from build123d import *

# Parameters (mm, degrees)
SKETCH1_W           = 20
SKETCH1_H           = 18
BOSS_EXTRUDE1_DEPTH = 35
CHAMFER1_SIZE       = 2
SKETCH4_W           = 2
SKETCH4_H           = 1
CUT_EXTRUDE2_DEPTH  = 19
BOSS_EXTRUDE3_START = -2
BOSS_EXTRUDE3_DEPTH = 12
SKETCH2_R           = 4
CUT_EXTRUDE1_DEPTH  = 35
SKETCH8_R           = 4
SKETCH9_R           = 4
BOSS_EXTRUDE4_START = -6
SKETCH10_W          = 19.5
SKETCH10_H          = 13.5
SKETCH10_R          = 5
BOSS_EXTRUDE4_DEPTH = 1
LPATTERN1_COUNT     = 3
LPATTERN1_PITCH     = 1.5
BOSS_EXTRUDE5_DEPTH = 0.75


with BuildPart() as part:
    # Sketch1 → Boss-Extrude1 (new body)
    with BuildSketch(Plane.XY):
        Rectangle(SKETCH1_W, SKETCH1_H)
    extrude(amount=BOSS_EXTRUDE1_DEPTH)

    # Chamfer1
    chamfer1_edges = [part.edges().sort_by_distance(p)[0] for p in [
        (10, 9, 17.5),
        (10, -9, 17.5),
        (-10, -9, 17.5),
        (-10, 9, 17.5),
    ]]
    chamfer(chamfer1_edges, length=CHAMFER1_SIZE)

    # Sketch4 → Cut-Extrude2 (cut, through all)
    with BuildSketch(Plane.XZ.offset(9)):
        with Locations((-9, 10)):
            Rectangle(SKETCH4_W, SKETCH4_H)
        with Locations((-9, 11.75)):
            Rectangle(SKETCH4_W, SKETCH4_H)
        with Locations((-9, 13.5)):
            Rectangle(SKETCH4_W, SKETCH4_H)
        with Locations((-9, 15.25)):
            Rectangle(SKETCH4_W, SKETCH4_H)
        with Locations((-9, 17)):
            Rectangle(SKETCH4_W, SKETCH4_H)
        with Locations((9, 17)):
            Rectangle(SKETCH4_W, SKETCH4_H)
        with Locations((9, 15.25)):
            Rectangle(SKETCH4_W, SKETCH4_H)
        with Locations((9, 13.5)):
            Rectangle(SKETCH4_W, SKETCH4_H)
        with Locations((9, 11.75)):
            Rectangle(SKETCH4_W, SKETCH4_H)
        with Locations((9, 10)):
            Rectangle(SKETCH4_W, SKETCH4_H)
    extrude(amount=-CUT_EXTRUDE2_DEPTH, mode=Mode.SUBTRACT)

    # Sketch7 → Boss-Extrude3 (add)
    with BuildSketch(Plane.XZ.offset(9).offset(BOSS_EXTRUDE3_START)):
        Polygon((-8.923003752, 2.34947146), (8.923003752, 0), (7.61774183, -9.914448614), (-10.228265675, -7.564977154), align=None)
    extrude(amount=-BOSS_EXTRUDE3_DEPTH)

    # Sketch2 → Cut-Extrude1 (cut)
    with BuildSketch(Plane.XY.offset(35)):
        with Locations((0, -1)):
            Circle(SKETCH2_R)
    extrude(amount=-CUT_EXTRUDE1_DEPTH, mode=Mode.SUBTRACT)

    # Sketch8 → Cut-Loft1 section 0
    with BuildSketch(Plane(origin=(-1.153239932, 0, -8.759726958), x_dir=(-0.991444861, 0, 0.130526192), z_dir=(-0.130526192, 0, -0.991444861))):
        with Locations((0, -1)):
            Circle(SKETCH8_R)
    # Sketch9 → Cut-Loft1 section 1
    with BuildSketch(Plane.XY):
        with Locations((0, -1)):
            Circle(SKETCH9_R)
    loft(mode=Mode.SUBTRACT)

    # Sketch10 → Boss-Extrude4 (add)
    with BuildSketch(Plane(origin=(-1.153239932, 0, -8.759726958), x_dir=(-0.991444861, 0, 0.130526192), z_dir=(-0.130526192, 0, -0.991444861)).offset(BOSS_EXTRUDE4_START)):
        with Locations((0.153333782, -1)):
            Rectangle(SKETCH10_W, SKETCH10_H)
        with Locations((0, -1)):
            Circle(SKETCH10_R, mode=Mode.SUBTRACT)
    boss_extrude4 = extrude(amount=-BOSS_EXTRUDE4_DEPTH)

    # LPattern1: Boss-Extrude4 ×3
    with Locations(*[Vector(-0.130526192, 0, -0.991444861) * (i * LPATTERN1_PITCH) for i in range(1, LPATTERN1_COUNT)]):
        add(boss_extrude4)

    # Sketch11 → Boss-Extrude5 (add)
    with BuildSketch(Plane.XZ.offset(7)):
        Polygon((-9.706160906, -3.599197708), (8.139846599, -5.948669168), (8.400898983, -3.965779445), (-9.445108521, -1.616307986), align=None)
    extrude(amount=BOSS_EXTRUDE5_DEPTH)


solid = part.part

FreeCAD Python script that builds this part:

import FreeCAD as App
import Part
import Sketcher

V = App.Vector
Q = App.Units.Quantity


def edges_at(feature, points):
    """Names of the edges that pass closest to the given points."""
    edges = feature.Shape.Edges
    near = lambda p: min(range(len(edges)), key=lambda i: edges[i].distToShape(Part.Vertex(*p))[0])
    return sorted({f"Edge{near(p) + 1}" for p in points})


def add_polygon(sketch, points):
    """Adds a closed chain of lines whose ends are joined by coincident constraints."""
    first, n = sketch.GeometryCount, len(points)
    for a, b in zip(points, points[1:] + points[:1]):
        sketch.addGeometry(Part.LineSegment(App.Vector(*a, 0), App.Vector(*b, 0)), False)
    for i in range(n):
        sketch.addConstraint(Sketcher.Constraint("Coincident", first + i, 2, first + (i + 1) % n, 1))

doc = App.newDocument("Part")
body = doc.addObject("PartDesign::Body", "Body")

# Sketch on XY plane
sketch1 = body.newObject("Sketcher::SketchObject", "Sketch")
sketch1.AttachmentSupport = (doc.getObject("XY_Plane"), [""])
sketch1.MapMode = "FlatFace"
add_polygon(sketch1, [(-10, 9), (-10, -9), (10, -9), (10, 9)])  # lines 0-3
sketch1.addConstraint([
    Sketcher.Constraint("Vertical", 0),
    Sketcher.Constraint("Horizontal", 1),
    Sketcher.Constraint("Vertical", 2),
    Sketcher.Constraint("Horizontal", 3),
    Sketcher.Constraint("Symmetric", 0, 2, 2, 2, -1, 1),
    Sketcher.Constraint("DistanceX", 1, 1, 1, 2, 20.0),
    Sketcher.Constraint("DistanceY", 0, 2, 0, 1, 18.0),
])
pad1 = body.newObject("PartDesign::Pad", "Pad")
pad1.Profile = sketch1
pad1.Length = 35
doc.recompute()

chamfer = body.newObject("PartDesign::Chamfer", "Chamfer")
chamfer.Base = (pad1, edges_at(pad1, [
    (10, 9, 17.5),
    (10, -9, 17.5),
    (-10, -9, 17.5),
    (-10, 9, 17.5),
]))
chamfer.Size = 2

# Sketch on XZ plane
sketch2 = body.newObject("Sketcher::SketchObject", "Sketch001")
sketch2.AttachmentSupport = (doc.getObject("XZ_Plane"), [""])
sketch2.MapMode = "FlatFace"
sketch2.AttachmentOffset = App.Placement(V(0, 0, 9), App.Rotation())
add_polygon(sketch2, [(-10, 10.5), (-10, 9.5), (-8, 9.5), (-8, 10.5)])  # lines 0-3
add_polygon(sketch2, [(-10, 12.2), (-10, 11.2), (-8, 11.2), (-8, 12.2)])  # lines 4-7
add_polygon(sketch2, [(-10, 14), (-10, 13), (-8, 13), (-8, 14)])  # lines 8-11
add_polygon(sketch2, [(-10, 15.8), (-10, 14.8), (-8, 14.8), (-8, 15.8)])  # lines 12-15
add_polygon(sketch2, [(-10, 17.5), (-10, 16.5), (-8, 16.5), (-8, 17.5)])  # lines 16-19
add_polygon(sketch2, [(8, 17.5), (8, 16.5), (10, 16.5), (10, 17.5)])  # lines 20-23
add_polygon(sketch2, [(8, 15.8), (8, 14.8), (10, 14.8), (10, 15.8)])  # lines 24-27
add_polygon(sketch2, [(8, 14), (8, 13), (10, 13), (10, 14)])  # lines 28-31
add_polygon(sketch2, [(8, 12.2), (8, 11.2), (10, 11.2), (10, 12.2)])  # lines 32-35
add_polygon(sketch2, [(8, 10.5), (8, 9.5), (10, 9.5), (10, 10.5)])  # lines 36-39
sketch2.addConstraint([
    Sketcher.Constraint("Vertical", 0),
    Sketcher.Constraint("Horizontal", 1),
    Sketcher.Constraint("Vertical", 2),
    Sketcher.Constraint("Horizontal", 3),
    Sketcher.Constraint("Vertical", 4),
    Sketcher.Constraint("Horizontal", 5),
    Sketcher.Constraint("Vertical", 6),
    Sketcher.Constraint("Horizontal", 7),
    Sketcher.Constraint("Vertical", 8),
    Sketcher.Constraint("Horizontal", 9),
    Sketcher.Constraint("Vertical", 10),
    Sketcher.Constraint("Horizontal", 11),
    Sketcher.Constraint("Vertical", 12),
    Sketcher.Constraint("Horizontal", 13),
    Sketcher.Constraint("Vertical", 14),
    Sketcher.Constraint("Horizontal", 15),
    Sketcher.Constraint("Vertical", 16),
    Sketcher.Constraint("Horizontal", 17),
    Sketcher.Constraint("Vertical", 18),
    Sketcher.Constraint("Horizontal", 19),
    Sketcher.Constraint("Vertical", 20),
    Sketcher.Constraint("Horizontal", 21),
    Sketcher.Constraint("Vertical", 22),
    Sketcher.Constraint("Horizontal", 23),
    Sketcher.Constraint("Vertical", 24),
    Sketcher.Constraint("Horizontal", 25),
    Sketcher.Constraint("Vertical", 26),
    Sketcher.Constraint("Horizontal", 27),
    Sketcher.Constraint("Vertical", 28),
    Sketcher.Constraint("Horizontal", 29),
    Sketcher.Constraint("Vertical", 30),
    Sketcher.Constraint("Horizontal", 31),
    Sketcher.Constraint("Vertical", 32),
    Sketcher.Constraint("Horizontal", 33),
    Sketcher.Constraint("Vertical", 34),
    Sketcher.Constraint("Horizontal", 35),
    Sketcher.Constraint("Vertical", 36),
    Sketcher.Constraint("Horizontal", 37),
    Sketcher.Constraint("Vertical", 38),
    Sketcher.Constraint("Horizontal", 39),
    Sketcher.Constraint("Symmetric", 17, 2, 20, 2, -2),
    Sketcher.Constraint("Symmetric", 19, 2, 22, 2, -2),
    Sketcher.Constraint("Symmetric", 13, 2, 24, 2, -2),
    Sketcher.Constraint("Symmetric", 15, 2, 26, 2, -2),
    Sketcher.Constraint("Symmetric", 9, 2, 28, 2, -2),
    Sketcher.Constraint("Symmetric", 11, 2, 30, 2, -2),
    Sketcher.Constraint("Symmetric", 5, 2, 32, 2, -2),
    Sketcher.Constraint("Symmetric", 7, 2, 34, 2, -2),
    Sketcher.Constraint("Symmetric", 1, 2, 36, 2, -2),
    Sketcher.Constraint("Symmetric", 3, 2, 38, 2, -2),
    Sketcher.Constraint("Vertical", 3, 2, 4, 2),
    Sketcher.Constraint("Vertical", 2, 2, 5, 2),
    Sketcher.Constraint("Vertical", 7, 2, 8, 2),
    Sketcher.Constraint("Vertical", 6, 2, 9, 2),
    Sketcher.Constraint("Vertical", 11, 2, 12, 2),
    Sketcher.Constraint("Vertical", 10, 2, 13, 2),
    Sketcher.Constraint("Vertical", 15, 2, 16, 2),
    Sketcher.Constraint("Vertical", 14, 2, 17, 2),
    Sketcher.Constraint("Equal", 2, 4),
    Sketcher.Constraint("Equal", 6, 8),
    Sketcher.Constraint("Equal", 10, 12),
    Sketcher.Constraint("Equal", 14, 16),
    Sketcher.Constraint("DistanceX", 1, 1, 1, 2, 2.0),
    Sketcher.Constraint("DistanceY", 0, 2, 0, 1, 1.0),
    Sketcher.Constraint("DistanceX", 0, 2, -1, 1, 10.0),
    Sketcher.Constraint("DistanceY", -1, 1, 8, 2, 13.0),
    Sketcher.Constraint("DistanceY", -1, 1, 0, 2, 9.5),
    Sketcher.Constraint("DistanceY", -1, 1, 16, 2, 16.5),
    Sketcher.Constraint("DistanceY", 7, 2, 12, 2, 2.5),
    Sketcher.Constraint("DistanceY", -1, 1, 4, 2, 11.25),
])
pocket1 = body.newObject("PartDesign::Pocket", "Pocket")
pocket1.Profile = sketch2
pocket1.Type = "ThroughAll"

# Sketch on XZ plane
sketch3 = body.newObject("Sketcher::SketchObject", "Sketch002")
sketch3.AttachmentSupport = (doc.getObject("XZ_Plane"), [""])
sketch3.MapMode = "FlatFace"
sketch3.AttachmentOffset = App.Placement(V(0, 0, 7), App.Rotation())
add_polygon(sketch3, [(9, 0), (-9, 2), (-10, -8), (8, -10)])  # lines 0-3
sketch3.addConstraint([
    Sketcher.Constraint("PointOnObject", 3, 2, -1),
    Sketcher.Constraint("Perpendicular", 0, 1),
    Sketcher.Constraint("Perpendicular", 1, 2),
    Sketcher.Constraint("Perpendicular", 2, 3),
    Sketcher.Constraint("Distance", 0, 18.0),
    Sketcher.Constraint("Distance", 1, 10.0),
    Sketcher.Constraint("Angle", 0, Q("172.5 deg")),
    Sketcher.Constraint("DistanceX", -1, 1, 2, 2, 7.617742),
])
pad2 = body.newObject("PartDesign::Pad", "Pad001")
pad2.Profile = sketch3
pad2.Length = 12
pad2.Reversed = True

# Sketch on XY plane
sketch4 = body.newObject("Sketcher::SketchObject", "Sketch003")
sketch4.AttachmentSupport = (doc.getObject("XY_Plane"), [""])
sketch4.MapMode = "FlatFace"
sketch4.AttachmentOffset = App.Placement(V(0, 0, 35), App.Rotation())
sketch4.addGeometry(Part.Circle(V(0, -1, 0), V(0, 0, 1), 4), False)
sketch4.addConstraint([
    Sketcher.Constraint("PointOnObject", 0, 3, -2),
    Sketcher.Constraint("Diameter", 0, 8.0),
    Sketcher.Constraint("DistanceY", 0, 3, -1, 1, 1.0),
])
pocket2 = body.newObject("PartDesign::Pocket", "Pocket001")
pocket2.Profile = sketch4
pocket2.Length = 35

# Sketch on an angled plane
sketch5 = body.newObject("Sketcher::SketchObject", "Sketch004")
sketch5.Placement = App.Placement(V(-1.15324, 0, -8.759727), App.Rotation(V(-0.991444861, 0, 0.130526192), V(0, 0.999999999, 0), V(-0.130526192, 0, -0.991444861), "ZXY"))
sketch5.addGeometry(Part.Circle(V(0, -1, 0), V(0, 0, 1), 4), False)
sketch5.addConstraint([
    Sketcher.Constraint("PointOnObject", 0, 3, -2),
    Sketcher.Constraint("Diameter", 0, 8.0),
    Sketcher.Constraint("DistanceY", 0, 3, -1, 1, 1.0),
])

# Sketch on XY plane
sketch6 = body.newObject("Sketcher::SketchObject", "Sketch005")
sketch6.AttachmentSupport = (doc.getObject("XY_Plane"), [""])
sketch6.MapMode = "FlatFace"
sketch6.addGeometry(Part.Circle(V(0, -1, 0), V(0, 0, 1), 4), False)
sketch6.addConstraint([
    Sketcher.Constraint("PointOnObject", 0, 3, -2),
    Sketcher.Constraint("Diameter", 0, 8.0),
    Sketcher.Constraint("DistanceY", 0, 3, -1, 1, 1.0),
])

subtractiveloft = body.newObject("PartDesign::SubtractiveLoft", "SubtractiveLoft")
subtractiveloft.Profile = sketch5
subtractiveloft.Sections = [sketch6]

# Sketch on an angled plane
sketch7 = body.newObject("Sketcher::SketchObject", "Sketch006")
sketch7.Placement = App.Placement(V(-0.370083, 0, -2.811058), App.Rotation(V(-0.991444861, 0, 0.130526192), V(0, 0.999999999, 0), V(-0.130526192, 0, -0.991444861), "ZXY"))
add_polygon(sketch7, [(-10, 6), (-10, -8), (10, -8), (10, 6)])  # lines 0-3
sketch7.addGeometry(Part.Circle(V(0, -1, 0), V(0, 0, 1), 5), False)  # 4
sketch7.addConstraint([
    Sketcher.Constraint("Vertical", 0),
    Sketcher.Constraint("Horizontal", 1),
    Sketcher.Constraint("Vertical", 2),
    Sketcher.Constraint("Horizontal", 3),
    Sketcher.Constraint("PointOnObject", 4, 3, -2),
    Sketcher.Constraint("Diameter", 4, 10.0),
    Sketcher.Constraint("DistanceX", 1, 1, 1, 2, 19.5),
    Sketcher.Constraint("DistanceY", 0, 2, 0, 1, 13.5),
    Sketcher.Constraint("DistanceY", 4, 3, -1, 1, 1.0),
    Sketcher.Constraint("DistanceY", 0, 2, -1, 1, 7.75),
    Sketcher.Constraint("DistanceX", 0, 2, -1, 1, 9.596666),
])
pad3 = body.newObject("PartDesign::Pad", "Pad002")
pad3.Profile = sketch7
pad3.Length = 1
pad3.Reversed = True
doc.recompute()

datumline = body.newObject("PartDesign::Line", "DatumLine")
datumline.Placement = App.Placement(V(0, 0, 0), App.Rotation(V(0, 0, 1), V(-0.130526192, 0, -0.991444861)))
linearpattern = body.newObject("PartDesign::LinearPattern", "LinearPattern")
linearpattern.Originals = [pad3]
linearpattern.Direction = (datumline, [""])
linearpattern.Mode = "offset"
linearpattern.Offset = 1.5
linearpattern.Occurrences = 3
body.Tip = linearpattern

# Sketch on XZ plane
sketch8 = body.newObject("Sketcher::SketchObject", "Sketch007")
sketch8.AttachmentSupport = (doc.getObject("XZ_Plane"), [""])
sketch8.MapMode = "FlatFace"
sketch8.AttachmentOffset = App.Placement(V(0, 0, 7), App.Rotation())
add_polygon(sketch8, [(-9.7, -3.6), (8.1, -5.9), (8.4, -4), (-9.4, -1.6)])  # lines 0-3
sketch8.addConstraint([
    Sketcher.Constraint("Perpendicular", 0, 1),
    Sketcher.Constraint("Perpendicular", 1, 2),
    Sketcher.Constraint("Perpendicular", 2, 3),
    Sketcher.Constraint("Distance", 0, 18.0),
    Sketcher.Constraint("Distance", 1, 2.0),
    Sketcher.Constraint("Angle", 0, Q("-7.5 deg")),
    Sketcher.Constraint("DistanceX", -1, 1, 1, 2, 8.400899),
    Sketcher.Constraint("DistanceY", 0, 2, -1, 1, 5.948669),
])
pad4 = body.newObject("PartDesign::Pad", "Pad003")
pad4.Profile = sketch8
pad4.Length = 0.75

doc.recompute()
